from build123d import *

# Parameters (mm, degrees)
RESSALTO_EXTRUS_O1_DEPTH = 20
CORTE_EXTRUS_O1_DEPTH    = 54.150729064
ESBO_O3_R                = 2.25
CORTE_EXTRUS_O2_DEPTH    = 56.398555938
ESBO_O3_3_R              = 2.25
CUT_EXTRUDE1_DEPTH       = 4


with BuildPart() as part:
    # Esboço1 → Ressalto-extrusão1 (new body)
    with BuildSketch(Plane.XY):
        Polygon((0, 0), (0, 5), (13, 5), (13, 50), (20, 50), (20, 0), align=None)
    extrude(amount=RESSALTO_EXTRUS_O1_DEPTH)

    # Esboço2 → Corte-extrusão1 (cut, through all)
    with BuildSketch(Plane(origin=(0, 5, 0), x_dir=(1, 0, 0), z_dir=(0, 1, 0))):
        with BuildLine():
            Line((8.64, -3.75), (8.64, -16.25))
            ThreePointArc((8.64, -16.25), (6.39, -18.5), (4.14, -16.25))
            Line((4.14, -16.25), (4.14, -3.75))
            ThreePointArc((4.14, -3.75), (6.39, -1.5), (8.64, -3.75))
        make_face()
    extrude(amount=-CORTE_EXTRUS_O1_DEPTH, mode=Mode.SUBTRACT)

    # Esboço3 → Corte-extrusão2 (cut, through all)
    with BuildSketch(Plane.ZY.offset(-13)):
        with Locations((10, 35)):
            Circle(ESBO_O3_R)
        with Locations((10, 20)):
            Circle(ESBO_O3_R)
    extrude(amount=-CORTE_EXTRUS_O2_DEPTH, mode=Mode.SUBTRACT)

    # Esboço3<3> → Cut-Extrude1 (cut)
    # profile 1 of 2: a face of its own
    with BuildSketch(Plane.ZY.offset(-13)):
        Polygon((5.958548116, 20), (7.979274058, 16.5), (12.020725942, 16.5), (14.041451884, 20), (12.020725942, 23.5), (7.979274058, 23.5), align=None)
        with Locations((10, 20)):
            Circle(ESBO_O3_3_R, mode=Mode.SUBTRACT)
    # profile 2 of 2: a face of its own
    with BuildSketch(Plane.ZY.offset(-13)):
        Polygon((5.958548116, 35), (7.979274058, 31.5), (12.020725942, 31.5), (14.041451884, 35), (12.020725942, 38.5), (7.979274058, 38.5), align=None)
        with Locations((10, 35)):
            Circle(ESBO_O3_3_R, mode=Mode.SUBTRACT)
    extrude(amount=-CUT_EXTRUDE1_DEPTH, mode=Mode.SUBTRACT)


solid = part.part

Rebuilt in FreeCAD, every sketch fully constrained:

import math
import FreeCAD as App
import Part
import Sketcher
from FreeCAD import Vector
Q = App.Units.Quantity


def add_polygon(sketch, points):
    """Adds a closed chain of lines whose ends are joined by coincident constraints."""
    first, n = sketch.GeometryCount, len(points)
    for a, b in zip(points, points[1:] + points[:1]):
        sketch.addGeometry(Part.LineSegment(App.Vector(*a, 0), App.Vector(*b, 0)), False)
    for i in range(n):
        sketch.addConstraint(Sketcher.Constraint("Coincident", first + i, 2, first + (i + 1) % n, 1))

doc = App.newDocument("Part")
body = doc.addObject("PartDesign::Body", "Body")

# Sketch on XY plane
sketch1 = doc.addObject("Sketcher::SketchObject", "Sketch")
body.addObject(sketch1)
sketch1.AttachmentSupport = (doc.XY_Plane, [""])
sketch1.MapMode = "FlatFace"
add_polygon(sketch1, [(0, 5), (0, 0), (20, 0), (20, 50), (13, 50), (13, 5)])  # lines 0-5
sketch1.addConstraint([
    Sketcher.Constraint("Vertical", 0),
    Sketcher.Constraint("Horizontal", 1),
    Sketcher.Constraint("Vertical", 2),
    Sketcher.Constraint("Horizontal", 3),
    Sketcher.Constraint("Vertical", 4),
    Sketcher.Constraint("Horizontal", 5),
    Sketcher.Constraint("Coincident", 0, 2, -1, 1),
    Sketcher.Constraint("DistanceX", 1, 1, 1, 2, 20.0),
    Sketcher.Constraint("DistanceX", 3, 2, 3, 1, 7.0),
    Sketcher.Constraint("DistanceY", 0, 2, 0, 1, 5.0),
    Sketcher.Constraint("DistanceY", 2, 1, 2, 2, 50.0),
])
pad1 = doc.addObject("PartDesign::Pad", "Pad")
body.addObject(pad1)
pad1.Profile = sketch1
pad1.Length = 20

# Sketch on XZ plane
sketch2 = doc.addObject("Sketcher::SketchObject", "Sketch001")
body.addObject(sketch2)
sketch2.AttachmentSupport = (doc.XZ_Plane, [""])
sketch2.MapMode = "FlatFace"
sketch2.AttachmentOffset = App.Placement(Vector(0, 0, -5), App.Rotation())
sketch2.addGeometry([
    Part.LineSegment(Vector(8.6, 16.2, 0), Vector(8.6, 3.8, 0)),
    Part.ArcOfCircle(Part.Circle(Vector(6.4, 3.8, 0), Vector(0, 0, 1), 2.2), math.radians(180), math.radians(360)),
    Part.LineSegment(Vector(4.1, 3.8, 0), Vector(4.1, 16.2, 0)),
    Part.ArcOfCircle(Part.Circle(Vector(6.4, 16.2, 0), Vector(0, 0, 1), 2.2), math.radians(0), math.radians(180)),
], False)
sketch2.addConstraint([
    Sketcher.Constraint("Tangent", 0, 2, 1, 2),
    Sketcher.Constraint("Tangent", 1, 1, 2, 1),
    Sketcher.Constraint("Tangent", 2, 2, 3, 2),
    Sketcher.Constraint("Tangent", 3, 1, 0, 1),
    Sketcher.Constraint("Vertical", 0),
    Sketcher.Constraint("Vertical", 2),
    Sketcher.Constraint("Radius", 1, 2.25),
    Sketcher.Constraint("DistanceY", 0, 2, 0, 1, 12.5),
    Sketcher.Constraint("DistanceX", -1, 1, 1, 3, 6.39),
    Sketcher.Constraint("DistanceY", -1, 1, 1, 3, 3.75),
])
pocket1 = doc.addObject("PartDesign::Pocket", "Pocket")
body.addObject(pocket1)
pocket1.Profile = sketch2
pocket1.Type = "ThroughAll"
pocket1.Reversed = True

# Sketch on YZ plane
sketch3 = doc.addObject("Sketcher::SketchObject", "Sketch002")
body.addObject(sketch3)
sketch3.AttachmentSupport = (doc.YZ_Plane, [""])
sketch3.MapMode = "FlatFace"
sketch3.AttachmentOffset = App.Placement(Vector(0, 0, 13), App.Rotation())
sketch3.addGeometry([
    Part.Circle(Vector(35, 10, 0), Vector(0, 0, 1), 2.2),
    Part.Circle(Vector(20, 10, 0), Vector(0, 0, 1), 2.2),
], False)
sketch3.addConstraint([
    Sketcher.Constraint("Equal", 0, 1),
    Sketcher.Constraint("Horizontal", 0, 3, 1, 3),
    Sketcher.Constraint("Diameter", 0, 4.5),
    Sketcher.Constraint("DistanceX", -1, 1, 0, 3, 35.0),
    Sketcher.Constraint("DistanceY", -1, 1, 0, 3, 10.0),
    Sketcher.Constraint("DistanceX", -1, 1, 1, 3, 20.0),
])
pocket2 = doc.addObject("PartDesign::Pocket", "Pocket001")
body.addObject(pocket2)
pocket2.Profile = sketch3
pocket2.Type = "ThroughAll"
pocket2.Reversed = True

# Sketch on YZ plane
sketch4 = doc.addObject("Sketcher::SketchObject", "Sketch003")
body.addObject(sketch4)
sketch4.AttachmentSupport = (doc.YZ_Plane, [""])
sketch4.MapMode = "FlatFace"
sketch4.AttachmentOffset = App.Placement(Vector(0, 0, 13), App.Rotation())
add_polygon(sketch4, [(20, 6), (16.5, 8), (16.5, 12), (20, 14), (23.5, 12), (23.5, 8)])  # lines 0-5
sketch4.addGeometry(Part.Circle(Vector(20, 10, 0), Vector(0, 0, 1), 2.2), False)  # 6
add_polygon(sketch4, [(35, 6), (31.5, 8), (31.5, 12), (35, 14), (38.5, 12), (38.5, 8)])  # lines 7-12
sketch4.addGeometry(Part.Circle(Vector(35, 10, 0), Vector(0, 0, 1), 2.2), False)  # 13
sketch4.addConstraint([
    Sketcher.Constraint("Vertical", 1),
    Sketcher.Constraint("Vertical", 4),
    Sketcher.Constraint("Vertical", 8),
    Sketcher.Constraint("Vertical", 11),
    Sketcher.Constraint("Equal", 6, 13),
    Sketcher.Constraint("Parallel", 0, 3),
    Sketcher.Constraint("Parallel", 2, 5),
    Sketcher.Constraint("Parallel", 3, 7),
    Sketcher.Constraint("Parallel", 5, 9),
    Sketcher.Constraint("Parallel", 7, 10),
    Sketcher.Constraint("Parallel", 9, 12),
    Sketcher.Constraint("Horizontal", 6, 3, 13, 3),
    Sketcher.Constraint("Horizontal", 1, 2, 3, 2),
    Sketcher.Constraint("Horizontal", 0, 2, 4, 2),
    Sketcher.Constraint("Horizontal", 4, 2, 7, 2),
    Sketcher.Constraint("Horizontal", 3, 2, 8, 2),
    Sketcher.Constraint("Horizontal", 2, 2, 9, 2),
    Sketcher.Constraint("Horizontal", 8, 2, 10, 2),
    Sketcher.Constraint("Horizontal", 7, 2, 11, 2),
    Sketcher.Constraint("Vertical", 6, 3, 2, 2),
    Sketcher.Constraint("Vertical", 2, 2, 5, 2),
    Sketcher.Constraint("Vertical", 13, 3, 9, 2),
    Sketcher.Constraint("Diameter", 6, 4.5),
    Sketcher.Constraint("Angle", 0, Q("150 deg")),
    Sketcher.Constraint("DistanceX", -1, 1, 6, 3, 20.0),
    Sketcher.Constraint("DistanceY", -1, 1, 6, 3, 10.0),
    Sketcher.Constraint("DistanceX", -1, 1, 13, 3, 35.0),
    Sketcher.Constraint("DistanceX", 1, 2, 3, 2, 7.0),
    Sketcher.Constraint("DistanceY", 1, 1, 1, 2, 4.041452),
    Sketcher.Constraint("DistanceY", -1, 1, 2, 2, 14.041452),
])
pocket3 = doc.addObject("PartDesign::Pocket", "Pocket002")
body.addObject(pocket3)
pocket3.Profile = sketch4
pocket3.Length = 4
pocket3.Reversed = True

doc.recompute()
